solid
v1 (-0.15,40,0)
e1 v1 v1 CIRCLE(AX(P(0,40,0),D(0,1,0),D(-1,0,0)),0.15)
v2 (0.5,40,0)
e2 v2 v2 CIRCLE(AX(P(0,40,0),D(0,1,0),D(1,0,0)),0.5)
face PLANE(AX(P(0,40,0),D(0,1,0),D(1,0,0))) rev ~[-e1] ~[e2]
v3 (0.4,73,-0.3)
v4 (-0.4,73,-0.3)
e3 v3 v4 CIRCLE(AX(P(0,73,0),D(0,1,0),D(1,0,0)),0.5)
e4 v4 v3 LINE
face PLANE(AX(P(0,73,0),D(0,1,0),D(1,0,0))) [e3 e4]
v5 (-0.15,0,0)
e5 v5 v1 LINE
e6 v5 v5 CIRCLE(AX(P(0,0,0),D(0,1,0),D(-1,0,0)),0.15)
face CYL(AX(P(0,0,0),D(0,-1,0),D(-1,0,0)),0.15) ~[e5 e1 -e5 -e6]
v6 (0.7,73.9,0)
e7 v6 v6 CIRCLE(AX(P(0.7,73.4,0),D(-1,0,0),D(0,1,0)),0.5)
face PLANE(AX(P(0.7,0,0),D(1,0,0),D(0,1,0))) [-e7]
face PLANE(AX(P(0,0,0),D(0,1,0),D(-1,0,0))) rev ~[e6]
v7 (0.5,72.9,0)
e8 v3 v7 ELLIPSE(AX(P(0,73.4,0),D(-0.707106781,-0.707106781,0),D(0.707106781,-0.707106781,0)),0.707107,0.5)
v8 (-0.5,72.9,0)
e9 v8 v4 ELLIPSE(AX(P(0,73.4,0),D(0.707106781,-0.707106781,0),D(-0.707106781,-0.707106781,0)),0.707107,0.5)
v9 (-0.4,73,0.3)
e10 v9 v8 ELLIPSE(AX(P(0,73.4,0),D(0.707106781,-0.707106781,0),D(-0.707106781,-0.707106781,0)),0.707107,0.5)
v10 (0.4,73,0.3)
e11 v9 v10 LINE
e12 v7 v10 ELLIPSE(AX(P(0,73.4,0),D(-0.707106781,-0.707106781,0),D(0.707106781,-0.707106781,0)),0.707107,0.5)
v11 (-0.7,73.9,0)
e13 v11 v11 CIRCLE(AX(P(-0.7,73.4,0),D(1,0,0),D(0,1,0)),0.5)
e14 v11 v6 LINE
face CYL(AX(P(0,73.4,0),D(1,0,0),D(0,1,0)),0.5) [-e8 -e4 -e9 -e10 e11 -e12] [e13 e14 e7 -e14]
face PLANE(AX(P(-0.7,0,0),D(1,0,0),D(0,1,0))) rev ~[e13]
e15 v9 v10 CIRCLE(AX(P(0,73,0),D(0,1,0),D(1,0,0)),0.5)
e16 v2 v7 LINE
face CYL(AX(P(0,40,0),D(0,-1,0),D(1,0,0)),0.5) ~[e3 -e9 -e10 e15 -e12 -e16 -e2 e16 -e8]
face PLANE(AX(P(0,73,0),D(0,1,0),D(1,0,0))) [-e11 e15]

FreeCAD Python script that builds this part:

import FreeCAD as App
import Part
import Sketcher
Q = App.Units.Quantity

doc = App.newDocument("Part")
body = doc.addObject("PartDesign::Body", "Body")

# Sketch on XZ plane
sketch1 = doc.addObject("Sketcher::SketchObject", "Sketch")
body.addObject(sketch1)
sketch1.AttachmentSupport = (doc.XZ_Plane, [""])
sketch1.MapMode = "FlatFace"
sketch1.addGeometry(Part.Circle(App.Vector(0, 0, 0), App.Vector(0, 0, 1), 0.15), False)
sketch1.addConstraint([
    Sketcher.Constraint("Coincident", 0, 3, -1, 1),
    Sketcher.Constraint("Diameter", 0, Q("0.3 mm")),
])
pad1 = doc.addObject("PartDesign::Pad", "Pad")
body.addObject(pad1)
pad1.Profile = sketch1
pad1.Length = 40
pad1.Reversed = True

# Sketch on XZ plane
sketch2 = doc.addObject("Sketcher::SketchObject", "Sketch001")
body.addObject(sketch2)
sketch2.AttachmentSupport = (doc.XZ_Plane, [""])
sketch2.MapMode = "FlatFace"
sketch2.AttachmentOffset = App.Placement(App.Vector(0, 0, -40), App.Rotation())
sketch2.addGeometry(Part.Circle(App.Vector(0, 0, 0), App.Vector(0, 0, 1), 0.5), False)
sketch2.addConstraint([
    Sketcher.Constraint("Coincident", 0, 3, -1, 1),
    Sketcher.Constraint("Diameter", 0, Q("1 mm")),
])
pad2 = doc.addObject("PartDesign::Pad", "Pad001")
body.addObject(pad2)
pad2.Profile = sketch2
pad2.Length = 33
pad2.Reversed = True

# Sketch on YZ plane
sketch3 = doc.addObject("Sketcher::SketchObject", "Sketch002")
body.addObject(sketch3)
sketch3.AttachmentSupport = (doc.YZ_Plane, [""])
sketch3.MapMode = "FlatFace"
sketch3.addGeometry(Part.Circle(App.Vector(73.4, 0, 0), App.Vector(0, 0, 1), 0.5), False)
sketch3.addConstraint([
    Sketcher.Constraint("PointOnObject", 0, 3, -1),
    Sketcher.Constraint("Diameter", 0, Q("1 mm")),
    Sketcher.Constraint("DistanceX", -1, 1, 0, 3, Q("73.4 mm")),
])
pad3 = doc.addObject("PartDesign::Pad", "Pad002")
body.addObject(pad3)
pad3.Profile = sketch3
pad3.Length = 1.4
pad3.Midplane = True

doc.recompute()
